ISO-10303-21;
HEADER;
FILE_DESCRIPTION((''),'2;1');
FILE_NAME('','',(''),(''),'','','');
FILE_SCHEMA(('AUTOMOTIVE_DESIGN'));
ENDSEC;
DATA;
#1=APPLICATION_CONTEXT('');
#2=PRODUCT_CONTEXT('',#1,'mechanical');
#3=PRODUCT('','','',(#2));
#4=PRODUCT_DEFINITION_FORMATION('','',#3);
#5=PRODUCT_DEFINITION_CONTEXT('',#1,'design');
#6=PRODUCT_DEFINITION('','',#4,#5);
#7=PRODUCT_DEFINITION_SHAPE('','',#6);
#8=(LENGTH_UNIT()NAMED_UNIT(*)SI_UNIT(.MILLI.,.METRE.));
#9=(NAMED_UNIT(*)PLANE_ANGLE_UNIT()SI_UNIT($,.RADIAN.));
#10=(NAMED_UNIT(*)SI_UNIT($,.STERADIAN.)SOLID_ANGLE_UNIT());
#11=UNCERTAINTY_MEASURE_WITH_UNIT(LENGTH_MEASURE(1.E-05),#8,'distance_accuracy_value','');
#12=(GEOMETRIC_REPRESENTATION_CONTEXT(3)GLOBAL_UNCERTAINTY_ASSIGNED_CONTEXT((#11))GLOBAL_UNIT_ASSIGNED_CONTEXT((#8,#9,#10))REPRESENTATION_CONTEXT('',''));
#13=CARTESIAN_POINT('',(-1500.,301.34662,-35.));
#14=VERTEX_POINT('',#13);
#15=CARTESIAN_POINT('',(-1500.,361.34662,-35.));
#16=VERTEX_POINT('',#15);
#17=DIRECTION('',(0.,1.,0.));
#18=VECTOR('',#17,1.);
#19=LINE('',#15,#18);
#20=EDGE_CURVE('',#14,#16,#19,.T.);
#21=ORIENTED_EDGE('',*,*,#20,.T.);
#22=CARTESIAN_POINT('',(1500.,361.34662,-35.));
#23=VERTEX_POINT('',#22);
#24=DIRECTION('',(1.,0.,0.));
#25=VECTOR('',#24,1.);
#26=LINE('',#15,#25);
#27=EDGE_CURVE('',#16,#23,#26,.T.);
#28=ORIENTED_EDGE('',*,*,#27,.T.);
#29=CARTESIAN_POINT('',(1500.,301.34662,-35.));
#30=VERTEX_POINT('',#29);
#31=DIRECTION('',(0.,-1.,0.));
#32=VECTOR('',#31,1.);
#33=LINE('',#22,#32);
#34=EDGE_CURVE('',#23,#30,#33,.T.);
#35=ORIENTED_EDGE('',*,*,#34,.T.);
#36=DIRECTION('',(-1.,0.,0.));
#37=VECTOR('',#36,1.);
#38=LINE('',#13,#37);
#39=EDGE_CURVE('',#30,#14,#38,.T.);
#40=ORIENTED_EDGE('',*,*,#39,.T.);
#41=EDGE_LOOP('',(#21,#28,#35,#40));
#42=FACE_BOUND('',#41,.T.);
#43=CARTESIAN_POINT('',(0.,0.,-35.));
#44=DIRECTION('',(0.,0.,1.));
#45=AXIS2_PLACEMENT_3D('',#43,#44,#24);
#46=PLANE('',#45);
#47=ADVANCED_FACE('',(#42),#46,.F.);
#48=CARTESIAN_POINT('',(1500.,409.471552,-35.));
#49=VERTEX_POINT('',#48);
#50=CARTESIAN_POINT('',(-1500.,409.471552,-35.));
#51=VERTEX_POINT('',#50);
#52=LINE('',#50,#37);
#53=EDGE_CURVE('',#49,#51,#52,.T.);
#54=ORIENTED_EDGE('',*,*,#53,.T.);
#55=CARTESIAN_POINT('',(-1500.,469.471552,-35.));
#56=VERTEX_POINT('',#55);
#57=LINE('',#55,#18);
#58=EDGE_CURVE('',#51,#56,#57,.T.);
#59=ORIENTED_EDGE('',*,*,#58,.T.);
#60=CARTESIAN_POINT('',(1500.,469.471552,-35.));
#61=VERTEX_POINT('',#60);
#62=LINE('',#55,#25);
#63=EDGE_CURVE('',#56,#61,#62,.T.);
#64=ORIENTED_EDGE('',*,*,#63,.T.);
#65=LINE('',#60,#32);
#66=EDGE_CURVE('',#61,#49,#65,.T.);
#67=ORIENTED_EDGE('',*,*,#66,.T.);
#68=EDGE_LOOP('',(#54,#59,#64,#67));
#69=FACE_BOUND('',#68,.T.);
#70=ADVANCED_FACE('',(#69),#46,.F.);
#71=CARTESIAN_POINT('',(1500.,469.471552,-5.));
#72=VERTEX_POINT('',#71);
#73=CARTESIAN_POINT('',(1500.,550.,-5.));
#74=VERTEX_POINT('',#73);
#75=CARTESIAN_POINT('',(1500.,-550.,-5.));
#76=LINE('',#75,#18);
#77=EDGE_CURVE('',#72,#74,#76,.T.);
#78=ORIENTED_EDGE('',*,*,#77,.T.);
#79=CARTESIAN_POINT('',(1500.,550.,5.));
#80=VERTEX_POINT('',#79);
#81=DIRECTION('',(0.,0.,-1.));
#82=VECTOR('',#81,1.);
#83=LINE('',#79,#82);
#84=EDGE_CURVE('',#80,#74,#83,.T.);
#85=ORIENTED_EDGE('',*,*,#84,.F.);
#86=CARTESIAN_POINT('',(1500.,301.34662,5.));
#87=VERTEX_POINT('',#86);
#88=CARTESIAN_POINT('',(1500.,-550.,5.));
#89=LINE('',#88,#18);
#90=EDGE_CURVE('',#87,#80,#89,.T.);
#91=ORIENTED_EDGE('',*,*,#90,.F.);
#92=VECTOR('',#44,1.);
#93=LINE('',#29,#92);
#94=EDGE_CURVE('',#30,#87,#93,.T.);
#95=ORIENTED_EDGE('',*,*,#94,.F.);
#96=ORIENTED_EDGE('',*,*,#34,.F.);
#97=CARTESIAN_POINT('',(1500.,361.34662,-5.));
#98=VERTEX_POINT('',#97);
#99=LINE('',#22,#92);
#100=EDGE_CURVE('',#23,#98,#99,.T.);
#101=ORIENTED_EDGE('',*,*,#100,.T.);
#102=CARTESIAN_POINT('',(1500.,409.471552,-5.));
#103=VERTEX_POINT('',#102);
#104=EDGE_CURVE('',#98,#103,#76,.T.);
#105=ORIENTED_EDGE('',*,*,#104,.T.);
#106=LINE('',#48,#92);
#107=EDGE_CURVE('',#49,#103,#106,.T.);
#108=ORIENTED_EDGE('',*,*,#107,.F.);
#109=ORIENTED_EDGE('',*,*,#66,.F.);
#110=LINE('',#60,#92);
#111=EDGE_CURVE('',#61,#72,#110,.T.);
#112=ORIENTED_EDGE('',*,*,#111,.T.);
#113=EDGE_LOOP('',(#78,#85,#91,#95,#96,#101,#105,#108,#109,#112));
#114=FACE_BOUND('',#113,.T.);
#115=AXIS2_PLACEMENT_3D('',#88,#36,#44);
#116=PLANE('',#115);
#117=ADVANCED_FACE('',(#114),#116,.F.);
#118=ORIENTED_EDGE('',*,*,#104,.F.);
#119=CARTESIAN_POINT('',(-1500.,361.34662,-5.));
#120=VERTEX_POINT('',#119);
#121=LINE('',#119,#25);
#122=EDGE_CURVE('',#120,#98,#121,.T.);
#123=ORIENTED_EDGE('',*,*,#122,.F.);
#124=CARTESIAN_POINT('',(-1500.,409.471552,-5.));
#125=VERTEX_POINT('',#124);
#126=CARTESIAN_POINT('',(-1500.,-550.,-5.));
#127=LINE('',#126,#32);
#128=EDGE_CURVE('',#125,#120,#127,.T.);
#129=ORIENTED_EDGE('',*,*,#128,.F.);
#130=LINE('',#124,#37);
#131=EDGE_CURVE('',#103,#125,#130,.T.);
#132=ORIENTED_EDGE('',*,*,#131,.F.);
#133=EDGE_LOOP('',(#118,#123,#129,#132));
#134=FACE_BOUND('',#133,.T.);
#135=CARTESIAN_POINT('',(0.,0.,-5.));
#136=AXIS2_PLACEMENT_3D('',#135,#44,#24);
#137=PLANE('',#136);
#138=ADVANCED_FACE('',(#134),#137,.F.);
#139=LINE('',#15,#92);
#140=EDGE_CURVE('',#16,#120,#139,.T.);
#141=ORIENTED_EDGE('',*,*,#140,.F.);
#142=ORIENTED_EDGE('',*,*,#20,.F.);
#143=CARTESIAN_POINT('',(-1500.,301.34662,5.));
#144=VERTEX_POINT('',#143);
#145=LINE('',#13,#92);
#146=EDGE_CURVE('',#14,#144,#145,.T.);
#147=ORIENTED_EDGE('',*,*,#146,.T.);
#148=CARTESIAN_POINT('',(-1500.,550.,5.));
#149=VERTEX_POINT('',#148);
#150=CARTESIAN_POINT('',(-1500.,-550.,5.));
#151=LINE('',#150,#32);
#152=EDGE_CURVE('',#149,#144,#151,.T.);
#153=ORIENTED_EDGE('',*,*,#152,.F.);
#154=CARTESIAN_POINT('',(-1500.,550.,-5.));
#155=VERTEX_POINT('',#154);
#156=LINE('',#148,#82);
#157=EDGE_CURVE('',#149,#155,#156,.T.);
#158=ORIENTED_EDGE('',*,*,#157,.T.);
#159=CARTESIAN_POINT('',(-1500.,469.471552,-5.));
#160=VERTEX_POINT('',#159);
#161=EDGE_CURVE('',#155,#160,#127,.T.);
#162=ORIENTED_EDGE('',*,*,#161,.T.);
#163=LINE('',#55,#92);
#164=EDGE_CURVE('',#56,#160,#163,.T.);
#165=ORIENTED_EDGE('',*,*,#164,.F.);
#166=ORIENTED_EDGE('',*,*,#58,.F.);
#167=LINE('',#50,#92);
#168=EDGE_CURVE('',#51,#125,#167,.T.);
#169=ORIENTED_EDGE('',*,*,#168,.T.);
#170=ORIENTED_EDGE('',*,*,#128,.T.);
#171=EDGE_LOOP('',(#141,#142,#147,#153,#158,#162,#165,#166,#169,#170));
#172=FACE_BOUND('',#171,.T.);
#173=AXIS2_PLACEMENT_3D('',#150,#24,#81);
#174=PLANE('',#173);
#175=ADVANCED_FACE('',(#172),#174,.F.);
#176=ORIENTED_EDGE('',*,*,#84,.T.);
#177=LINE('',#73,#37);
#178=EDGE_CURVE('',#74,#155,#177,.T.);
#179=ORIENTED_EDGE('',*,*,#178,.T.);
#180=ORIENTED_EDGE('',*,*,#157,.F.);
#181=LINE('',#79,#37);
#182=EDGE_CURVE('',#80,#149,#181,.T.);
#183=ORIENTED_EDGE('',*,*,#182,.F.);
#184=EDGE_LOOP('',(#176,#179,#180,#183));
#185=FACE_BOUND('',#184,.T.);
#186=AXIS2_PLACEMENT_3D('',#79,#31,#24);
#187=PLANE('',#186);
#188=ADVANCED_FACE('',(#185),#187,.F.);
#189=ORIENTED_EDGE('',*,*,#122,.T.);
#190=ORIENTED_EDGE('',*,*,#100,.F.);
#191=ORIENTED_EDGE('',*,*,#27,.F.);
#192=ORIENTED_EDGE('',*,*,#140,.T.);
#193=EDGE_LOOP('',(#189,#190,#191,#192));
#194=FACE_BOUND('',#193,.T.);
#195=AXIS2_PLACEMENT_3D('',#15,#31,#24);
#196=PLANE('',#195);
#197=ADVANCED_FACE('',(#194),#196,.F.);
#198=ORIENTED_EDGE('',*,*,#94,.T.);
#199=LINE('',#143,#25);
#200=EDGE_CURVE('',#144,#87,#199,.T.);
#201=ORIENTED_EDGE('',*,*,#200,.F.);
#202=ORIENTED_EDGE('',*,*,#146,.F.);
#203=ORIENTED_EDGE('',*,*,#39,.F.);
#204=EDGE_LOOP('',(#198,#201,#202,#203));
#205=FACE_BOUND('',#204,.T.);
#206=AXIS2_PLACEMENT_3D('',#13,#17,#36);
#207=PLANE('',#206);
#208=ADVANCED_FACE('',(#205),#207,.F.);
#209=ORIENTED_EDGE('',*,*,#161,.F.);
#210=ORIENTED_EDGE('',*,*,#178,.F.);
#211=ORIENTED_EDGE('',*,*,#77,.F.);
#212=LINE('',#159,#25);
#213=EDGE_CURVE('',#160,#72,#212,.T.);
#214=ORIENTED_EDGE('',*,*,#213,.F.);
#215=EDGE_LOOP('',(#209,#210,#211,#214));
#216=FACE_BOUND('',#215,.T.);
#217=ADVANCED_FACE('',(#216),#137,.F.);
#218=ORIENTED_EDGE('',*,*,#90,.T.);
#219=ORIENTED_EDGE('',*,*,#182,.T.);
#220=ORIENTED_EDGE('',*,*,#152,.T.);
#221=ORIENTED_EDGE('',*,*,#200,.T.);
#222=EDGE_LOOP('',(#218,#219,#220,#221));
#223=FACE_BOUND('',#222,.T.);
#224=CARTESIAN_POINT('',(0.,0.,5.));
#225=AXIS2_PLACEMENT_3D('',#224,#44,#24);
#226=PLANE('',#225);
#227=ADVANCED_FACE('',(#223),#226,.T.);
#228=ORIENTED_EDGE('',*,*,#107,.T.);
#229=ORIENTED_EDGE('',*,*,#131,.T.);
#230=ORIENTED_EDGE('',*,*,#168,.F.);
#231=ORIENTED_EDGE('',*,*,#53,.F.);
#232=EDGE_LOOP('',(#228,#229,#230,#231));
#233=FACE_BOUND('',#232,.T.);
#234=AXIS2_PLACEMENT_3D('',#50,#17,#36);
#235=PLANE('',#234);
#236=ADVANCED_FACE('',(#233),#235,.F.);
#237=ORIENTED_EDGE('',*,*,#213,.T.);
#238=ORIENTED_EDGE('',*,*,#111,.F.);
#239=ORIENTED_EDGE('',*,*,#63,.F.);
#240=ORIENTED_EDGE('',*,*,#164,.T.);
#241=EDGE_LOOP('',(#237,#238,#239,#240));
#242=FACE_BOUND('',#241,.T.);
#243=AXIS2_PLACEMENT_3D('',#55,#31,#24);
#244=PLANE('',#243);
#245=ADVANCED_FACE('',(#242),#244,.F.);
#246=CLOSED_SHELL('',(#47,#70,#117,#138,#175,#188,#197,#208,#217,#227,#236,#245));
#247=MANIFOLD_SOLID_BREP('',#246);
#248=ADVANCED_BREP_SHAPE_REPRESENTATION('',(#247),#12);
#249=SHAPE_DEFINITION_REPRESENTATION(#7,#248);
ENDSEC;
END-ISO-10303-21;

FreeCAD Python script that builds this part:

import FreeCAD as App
import Part
import Sketcher
from FreeCAD import Vector


def add_polygon(sketch, points):
    """Adds a closed chain of lines whose ends are joined by coincident constraints."""
    first, n = sketch.GeometryCount, len(points)
    for a, b in zip(points, points[1:] + points[:1]):
        sketch.addGeometry(Part.LineSegment(App.Vector(*a, 0), App.Vector(*b, 0)), False)
    for i in range(n):
        sketch.addConstraint(Sketcher.Constraint("Coincident", first + i, 2, first + (i + 1) % n, 1))

doc = App.newDocument("Part")
params = doc.addObject("Spreadsheet::Sheet", "Params")
for row, (alias, value) in enumerate([
    ("sketch1_width", "3000 mm"),
    ("sketch1_height", "1100 mm"),
    ("pad1_length", "10 mm"),
    ("sketch2_width", "3000 mm"),
    ("sketch2_height", "60 mm"),
    ("pad2_length", "30 mm"),
    ("sketch3_width", "3000 mm"),
], start=1):
    params.set(f"A{row}", alias)
    params.set(f"B{row}", "=" + value)
    params.setAlias(f"B{row}", alias)

body = doc.addObject("PartDesign::Body", "Body")

# Sketch on XY plane
sketch1 = doc.addObject("Sketcher::SketchObject", "Sketch")
body.addObject(sketch1)
sketch1.AttachmentSupport = (doc.XY_Plane, [""])
sketch1.MapMode = "FlatFace"
add_polygon(sketch1, [(-1500, 550), (-1500, -550), (1500, -550), (1500, 550)])  # lines 0-3
sketch1.addConstraint(Sketcher.Constraint("Vertical", 0))
sketch1.addConstraint(Sketcher.Constraint("Horizontal", 1))
sketch1.addConstraint(Sketcher.Constraint("Vertical", 2))
sketch1.addConstraint(Sketcher.Constraint("Horizontal", 3))
sketch1.addConstraint(Sketcher.Constraint("Symmetric", 0, 2, 2, 2, -1, 1))
sketch1.addConstraint(Sketcher.Constraint("DistanceX", 1, 1, 1, 2, 3000.0))
sketch1.addConstraint(Sketcher.Constraint("DistanceY", 0, 2, 0, 1, 1100.0))
sketch1.setExpression("Constraints[9]", "Params.sketch1_width")
sketch1.setExpression("Constraints[10]", "Params.sketch1_height")
pad1 = doc.addObject("PartDesign::Pad", "Pad")
body.addObject(pad1)
pad1.Profile = sketch1
pad1.setExpression("Length", "Params.pad1_length")
pad1.Midplane = True

# Sketch on XY plane
sketch2 = doc.addObject("Sketcher::SketchObject", "Sketch001")
body.addObject(sketch2)
sketch2.AttachmentSupport = (doc.XY_Plane, [""])
sketch2.MapMode = "FlatFace"
sketch2.AttachmentOffset = App.Placement(Vector(0, 0, -5), App.Rotation())
add_polygon(sketch2, [(1500, 469.471552), (1500, 409.471552), (-1500, 409.471552), (-1500, 469.471552)])  # lines 0-3
add_polygon(sketch2, [(1500, 361.34662), (1500, 301.34662), (-1500, 301.34662), (-1500, 361.34662)])  # lines 4-7
sketch2.addConstraint(Sketcher.Constraint("Vertical", 0))
sketch2.addConstraint(Sketcher.Constraint("Horizontal", 1))
sketch2.addConstraint(Sketcher.Constraint("Vertical", 2))
sketch2.addConstraint(Sketcher.Constraint("Horizontal", 3))
sketch2.addConstraint(Sketcher.Constraint("Vertical", 4))
sketch2.addConstraint(Sketcher.Constraint("Horizontal", 5))
sketch2.addConstraint(Sketcher.Constraint("Vertical", 6))
sketch2.addConstraint(Sketcher.Constraint("Horizontal", 7))
sketch2.addConstraint(Sketcher.Constraint("Vertical", 3, 2, 4, 2))
sketch2.addConstraint(Sketcher.Constraint("Vertical", 2, 2, 5, 2))
sketch2.addConstraint(Sketcher.Constraint("Equal", 2, 4))
sketch2.addConstraint(Sketcher.Constraint("DistanceX", 1, 2, 1, 1, 3000.0))
sketch2.addConstraint(Sketcher.Constraint("DistanceY", 0, 2, 0, 1, 60.0))
sketch2.addConstraint(Sketcher.Constraint("DistanceX", -1, 1, 0, 2, 1500.0))
sketch2.addConstraint(Sketcher.Constraint("DistanceY", -1, 1, 0, 2, 409.471552))
sketch2.addConstraint(Sketcher.Constraint("DistanceY", -1, 1, 4, 2, 301.34662))
sketch2.setExpression("Constraints[19]", "Params.sketch2_width")
sketch2.setExpression("Constraints[20]", "Params.sketch2_height")
pad2 = doc.addObject("PartDesign::Pad", "Pad001")
body.addObject(pad2)
pad2.Profile = sketch2
pad2.setExpression("Length", "Params.pad2_length")
pad2.Reversed = True

# Sketch on XY plane
sketch3 = doc.addObject("Sketcher::SketchObject", "Sketch002")
body.addObject(sketch3)
sketch3.AttachmentSupport = (doc.XY_Plane, [""])
sketch3.MapMode = "FlatFace"
sketch3.AttachmentOffset = App.Placement(Vector(0, 0, -5), App.Rotation())
add_polygon(sketch3, [(1500, 301.34662), (1500, -550), (-1500, -550), (-1500, 301.34662)])  # lines 0-3
sketch3.addConstraint(Sketcher.Constraint("Vertical", 0))
sketch3.addConstraint(Sketcher.Constraint("Horizontal", 1))
sketch3.addConstraint(Sketcher.Constraint("Vertical", 2))
sketch3.addConstraint(Sketcher.Constraint("Horizontal", 3))
sketch3.addConstraint(Sketcher.Constraint("DistanceX", 1, 2, 1, 1, 3000.0))
sketch3.addConstraint(Sketcher.Constraint("DistanceX", -1, 1, 0, 2, 1500.0))
sketch3.addConstraint(Sketcher.Constraint("DistanceY", 0, 2, -1, 1, 550.0))
sketch3.addConstraint(Sketcher.Constraint("DistanceY", 0, 2, 0, 1, 851.34662))
sketch3.setExpression("Constraints[8]", "Params.sketch3_width")
pocket1 = doc.addObject("PartDesign::Pocket", "Pocket")
body.addObject(pocket1)
pocket1.Profile = sketch3
pocket1.Type = "ThroughAll"
pocket1.Reversed = True

doc.recompute()
